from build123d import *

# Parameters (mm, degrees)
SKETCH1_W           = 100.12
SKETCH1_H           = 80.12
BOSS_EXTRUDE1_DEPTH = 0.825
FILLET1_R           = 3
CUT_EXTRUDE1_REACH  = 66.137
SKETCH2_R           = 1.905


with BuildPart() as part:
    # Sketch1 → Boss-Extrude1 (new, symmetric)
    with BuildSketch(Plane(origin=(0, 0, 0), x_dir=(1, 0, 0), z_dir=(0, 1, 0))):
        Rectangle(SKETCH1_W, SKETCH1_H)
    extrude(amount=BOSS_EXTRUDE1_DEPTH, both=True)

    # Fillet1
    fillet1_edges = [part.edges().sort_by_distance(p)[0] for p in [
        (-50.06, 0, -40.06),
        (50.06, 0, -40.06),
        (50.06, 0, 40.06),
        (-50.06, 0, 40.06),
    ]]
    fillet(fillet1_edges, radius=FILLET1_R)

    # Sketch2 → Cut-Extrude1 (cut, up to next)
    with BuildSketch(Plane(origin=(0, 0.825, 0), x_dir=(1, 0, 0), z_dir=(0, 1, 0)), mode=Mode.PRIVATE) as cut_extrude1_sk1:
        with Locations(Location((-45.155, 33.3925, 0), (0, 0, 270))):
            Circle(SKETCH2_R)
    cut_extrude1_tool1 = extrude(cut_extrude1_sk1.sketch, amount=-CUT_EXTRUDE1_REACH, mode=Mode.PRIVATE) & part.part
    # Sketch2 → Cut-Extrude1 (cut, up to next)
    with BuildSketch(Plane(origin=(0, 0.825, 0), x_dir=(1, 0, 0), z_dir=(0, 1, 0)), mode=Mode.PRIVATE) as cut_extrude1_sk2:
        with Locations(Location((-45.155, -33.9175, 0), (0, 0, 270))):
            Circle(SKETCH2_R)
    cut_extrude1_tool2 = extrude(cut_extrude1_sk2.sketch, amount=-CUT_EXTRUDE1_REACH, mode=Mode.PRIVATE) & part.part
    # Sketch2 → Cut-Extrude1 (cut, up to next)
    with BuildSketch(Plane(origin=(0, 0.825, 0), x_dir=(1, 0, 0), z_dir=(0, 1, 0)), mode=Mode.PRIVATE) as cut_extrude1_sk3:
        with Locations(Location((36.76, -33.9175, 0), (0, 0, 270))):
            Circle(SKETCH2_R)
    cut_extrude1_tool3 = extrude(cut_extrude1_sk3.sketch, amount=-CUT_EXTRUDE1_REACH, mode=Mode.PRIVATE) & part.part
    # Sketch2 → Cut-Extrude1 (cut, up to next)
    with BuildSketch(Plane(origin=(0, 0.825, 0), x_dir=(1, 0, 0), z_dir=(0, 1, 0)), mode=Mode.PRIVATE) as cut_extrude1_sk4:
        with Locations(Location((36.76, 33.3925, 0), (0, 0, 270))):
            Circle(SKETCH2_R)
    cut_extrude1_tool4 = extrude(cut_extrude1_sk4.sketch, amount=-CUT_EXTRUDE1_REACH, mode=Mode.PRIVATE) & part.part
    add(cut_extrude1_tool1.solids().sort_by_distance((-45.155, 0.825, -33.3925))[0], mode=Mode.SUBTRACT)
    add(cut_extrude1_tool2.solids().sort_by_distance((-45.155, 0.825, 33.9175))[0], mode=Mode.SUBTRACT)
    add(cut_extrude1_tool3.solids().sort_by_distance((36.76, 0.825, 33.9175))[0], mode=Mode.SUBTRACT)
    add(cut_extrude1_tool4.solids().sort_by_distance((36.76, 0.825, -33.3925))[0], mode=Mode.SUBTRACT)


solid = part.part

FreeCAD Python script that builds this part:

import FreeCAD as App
import Part
import Sketcher
Q = App.Units.Quantity


def edges_at(feature, points):
    """Names of the edges that pass closest to the given points."""
    edges = feature.Shape.Edges
    near = lambda p: min(range(len(edges)), key=lambda i: edges[i].distToShape(Part.Vertex(*p))[0])
    return sorted({f"Edge{near(p) + 1}" for p in points})


def add_polygon(sketch, points):
    """Adds a closed chain of lines whose ends are joined by coincident constraints."""
    first, n = sketch.GeometryCount, len(points)
    for a, b in zip(points, points[1:] + points[:1]):
        sketch.addGeometry(Part.LineSegment(App.Vector(*a, 0), App.Vector(*b, 0)), False)
    for i in range(n):
        sketch.addConstraint(Sketcher.Constraint("Coincident", first + i, 2, first + (i + 1) % n, 1))

doc = App.newDocument("Part")
body = doc.addObject("PartDesign::Body", "Body")

sketch1 = doc.addObject("Sketcher::SketchObject", "Sketch")
body.addObject(sketch1)
sketch1.AttachmentSupport = (doc.XZ_Plane, [""])
sketch1.MapMode = "FlatFace"
add_polygon(sketch1, [(-50.06, -40.06), (-50.06, 40.06), (50.06, 40.06), (50.06, -40.06)])
sketch1.addConstraint(Sketcher.Constraint("Vertical", 0))
sketch1.addConstraint(Sketcher.Constraint("Horizontal", 1))
sketch1.addConstraint(Sketcher.Constraint("Vertical", 2))
sketch1.addConstraint(Sketcher.Constraint("Horizontal", 3))
sketch1.addConstraint(Sketcher.Constraint("Symmetric", 0, 2, 2, 2, -1, 1))
sketch1.addConstraint(Sketcher.Constraint("DistanceX", 1, 1, 1, 2, Q("100.12 mm")))
sketch1.addConstraint(Sketcher.Constraint("DistanceY", 0, 1, 0, 2, Q("80.12 mm")))
pad1 = doc.addObject("PartDesign::Pad", "Pad")
body.addObject(pad1)
pad1.Profile = sketch1
pad1.Length = 1.65
pad1.Midplane = True
doc.recompute()

fillet = doc.addObject("PartDesign::Fillet", "Fillet")
body.addObject(fillet)
fillet.Base = (pad1, edges_at(pad1, [
    (-50.06, 0, -40.06),
    (50.06, 0, -40.06),
    (50.06, 0, 40.06),
    (-50.06, 0, 40.06),
]))
fillet.Radius = 3

sketch2 = doc.addObject("Sketcher::SketchObject", "Sketch001")
body.addObject(sketch2)
sketch2.AttachmentSupport = (doc.XZ_Plane, [""])
sketch2.MapMode = "FlatFace"
sketch2.AttachmentOffset = App.Placement(App.Vector(0, 0, -0.825), App.Rotation())
sketch2.addGeometry(Part.Circle(App.Vector(-45.155, -33.3925, 0), App.Vector(0, 0, 1), 1.905), False)
sketch2.addConstraint(Sketcher.Constraint("Diameter", 0, Q("3.81 mm")))
sketch2.addConstraint(Sketcher.Constraint("DistanceX", 0, 3, -1, 1, Q("45.155 mm")))
sketch2.addConstraint(Sketcher.Constraint("DistanceY", 0, 3, -1, 1, Q("33.3925 mm")))
pocket1 = doc.addObject("PartDesign::Pocket", "Pocket")
body.addObject(pocket1)
pocket1.Profile = sketch2
pocket1.Type = "UpToFirst"
pocket1.Reversed = True

sketch3 = doc.addObject("Sketcher::SketchObject", "Sketch002")
body.addObject(sketch3)
sketch3.AttachmentSupport = (doc.XZ_Plane, [""])
sketch3.MapMode = "FlatFace"
sketch3.AttachmentOffset = App.Placement(App.Vector(0, 0, -0.825), App.Rotation())
sketch3.addGeometry(Part.Circle(App.Vector(-45.155, 33.9175, 0), App.Vector(0, 0, 1), 1.905), False)
sketch3.addConstraint(Sketcher.Constraint("Diameter", 0, Q("3.81 mm")))
sketch3.addConstraint(Sketcher.Constraint("DistanceX", 0, 3, -1, 1, Q("45.155 mm")))
sketch3.addConstraint(Sketcher.Constraint("DistanceY", -1, 1, 0, 3, Q("33.9175 mm")))
pocket2 = doc.addObject("PartDesign::Pocket", "Pocket001")
body.addObject(pocket2)
pocket2.Profile = sketch3
pocket2.Type = "UpToFirst"
pocket2.Reversed = True

sketch4 = doc.addObject("Sketcher::SketchObject", "Sketch003")
body.addObject(sketch4)
sketch4.AttachmentSupport = (doc.XZ_Plane, [""])
sketch4.MapMode = "FlatFace"
sketch4.AttachmentOffset = App.Placement(App.Vector(0, 0, -0.825), App.Rotation())
sketch4.addGeometry(Part.Circle(App.Vector(36.76, 33.9175, 0), App.Vector(0, 0, 1), 1.905), False)
sketch4.addConstraint(Sketcher.Constraint("Diameter", 0, Q("3.81 mm")))
sketch4.addConstraint(Sketcher.Constraint("DistanceX", -1, 1, 0, 3, Q("36.76 mm")))
sketch4.addConstraint(Sketcher.Constraint("DistanceY", -1, 1, 0, 3, Q("33.9175 mm")))
pocket3 = doc.addObject("PartDesign::Pocket", "Pocket002")
body.addObject(pocket3)
pocket3.Profile = sketch4
pocket3.Type = "UpToFirst"
pocket3.Reversed = True

sketch5 = doc.addObject("Sketcher::SketchObject", "Sketch004")
body.addObject(sketch5)
sketch5.AttachmentSupport = (doc.XZ_Plane, [""])
sketch5.MapMode = "FlatFace"
sketch5.AttachmentOffset = App.Placement(App.Vector(0, 0, -0.825), App.Rotation())
sketch5.addGeometry(Part.Circle(App.Vector(36.76, -33.3925, 0), App.Vector(0, 0, 1), 1.905), False)
sketch5.addConstraint(Sketcher.Constraint("Diameter", 0, Q("3.81 mm")))
sketch5.addConstraint(Sketcher.Constraint("DistanceX", -1, 1, 0, 3, Q("36.76 mm")))
sketch5.addConstraint(Sketcher.Constraint("DistanceY", 0, 3, -1, 1, Q("33.3925 mm")))
pocket4 = doc.addObject("PartDesign::Pocket", "Pocket003")
body.addObject(pocket4)
pocket4.Profile = sketch5
pocket4.Type = "UpToFirst"
pocket4.Reversed = True

doc.recompute()
